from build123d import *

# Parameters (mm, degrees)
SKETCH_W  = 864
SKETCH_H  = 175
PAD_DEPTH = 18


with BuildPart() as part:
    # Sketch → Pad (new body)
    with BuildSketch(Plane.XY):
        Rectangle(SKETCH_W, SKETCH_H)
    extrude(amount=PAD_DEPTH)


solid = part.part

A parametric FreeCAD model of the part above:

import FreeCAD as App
import Part
import Sketcher
from FreeCAD import Vector


def add_polygon(sketch, points):
    """Adds a closed chain of lines whose ends are joined by coincident constraints."""
    first, n = sketch.GeometryCount, len(points)
    for a, b in zip(points, points[1:] + points[:1]):
        sketch.addGeometry(Part.LineSegment(App.Vector(*a, 0), App.Vector(*b, 0)), False)
    for i in range(n):
        sketch.addConstraint(Sketcher.Constraint("Coincident", first + i, 2, first + (i + 1) % n, 1))

doc = App.newDocument("Part")
body = doc.addObject("PartDesign::Body", "Body")

# Sketch on XY plane
sketch1 = body.newObject("Sketcher::SketchObject", "Sketch")
sketch1.AttachmentSupport = (doc.getObject("XY_Plane"), [""])
sketch1.MapMode = "FlatFace"
add_polygon(sketch1, [(-432, 88), (-432, -88), (432, -88), (432, 88)])  # lines 0-3
sketch1.addConstraint([
    Sketcher.Constraint("Vertical", 0),
    Sketcher.Constraint("Horizontal", 1),
    Sketcher.Constraint("Vertical", 2),
    Sketcher.Constraint("Horizontal", 3),
    Sketcher.Constraint("Symmetric", 0, 2, 2, 2, -1, 1),
    Sketcher.Constraint("DistanceX", 1, 1, 1, 2, 864.0),
    Sketcher.Constraint("DistanceY", 0, 2, 0, 1, 175.0),
])
pad1 = body.newObject("PartDesign::Pad", "Pad")
pad1.Profile = sketch1
pad1.Length = 18

doc.recompute()
